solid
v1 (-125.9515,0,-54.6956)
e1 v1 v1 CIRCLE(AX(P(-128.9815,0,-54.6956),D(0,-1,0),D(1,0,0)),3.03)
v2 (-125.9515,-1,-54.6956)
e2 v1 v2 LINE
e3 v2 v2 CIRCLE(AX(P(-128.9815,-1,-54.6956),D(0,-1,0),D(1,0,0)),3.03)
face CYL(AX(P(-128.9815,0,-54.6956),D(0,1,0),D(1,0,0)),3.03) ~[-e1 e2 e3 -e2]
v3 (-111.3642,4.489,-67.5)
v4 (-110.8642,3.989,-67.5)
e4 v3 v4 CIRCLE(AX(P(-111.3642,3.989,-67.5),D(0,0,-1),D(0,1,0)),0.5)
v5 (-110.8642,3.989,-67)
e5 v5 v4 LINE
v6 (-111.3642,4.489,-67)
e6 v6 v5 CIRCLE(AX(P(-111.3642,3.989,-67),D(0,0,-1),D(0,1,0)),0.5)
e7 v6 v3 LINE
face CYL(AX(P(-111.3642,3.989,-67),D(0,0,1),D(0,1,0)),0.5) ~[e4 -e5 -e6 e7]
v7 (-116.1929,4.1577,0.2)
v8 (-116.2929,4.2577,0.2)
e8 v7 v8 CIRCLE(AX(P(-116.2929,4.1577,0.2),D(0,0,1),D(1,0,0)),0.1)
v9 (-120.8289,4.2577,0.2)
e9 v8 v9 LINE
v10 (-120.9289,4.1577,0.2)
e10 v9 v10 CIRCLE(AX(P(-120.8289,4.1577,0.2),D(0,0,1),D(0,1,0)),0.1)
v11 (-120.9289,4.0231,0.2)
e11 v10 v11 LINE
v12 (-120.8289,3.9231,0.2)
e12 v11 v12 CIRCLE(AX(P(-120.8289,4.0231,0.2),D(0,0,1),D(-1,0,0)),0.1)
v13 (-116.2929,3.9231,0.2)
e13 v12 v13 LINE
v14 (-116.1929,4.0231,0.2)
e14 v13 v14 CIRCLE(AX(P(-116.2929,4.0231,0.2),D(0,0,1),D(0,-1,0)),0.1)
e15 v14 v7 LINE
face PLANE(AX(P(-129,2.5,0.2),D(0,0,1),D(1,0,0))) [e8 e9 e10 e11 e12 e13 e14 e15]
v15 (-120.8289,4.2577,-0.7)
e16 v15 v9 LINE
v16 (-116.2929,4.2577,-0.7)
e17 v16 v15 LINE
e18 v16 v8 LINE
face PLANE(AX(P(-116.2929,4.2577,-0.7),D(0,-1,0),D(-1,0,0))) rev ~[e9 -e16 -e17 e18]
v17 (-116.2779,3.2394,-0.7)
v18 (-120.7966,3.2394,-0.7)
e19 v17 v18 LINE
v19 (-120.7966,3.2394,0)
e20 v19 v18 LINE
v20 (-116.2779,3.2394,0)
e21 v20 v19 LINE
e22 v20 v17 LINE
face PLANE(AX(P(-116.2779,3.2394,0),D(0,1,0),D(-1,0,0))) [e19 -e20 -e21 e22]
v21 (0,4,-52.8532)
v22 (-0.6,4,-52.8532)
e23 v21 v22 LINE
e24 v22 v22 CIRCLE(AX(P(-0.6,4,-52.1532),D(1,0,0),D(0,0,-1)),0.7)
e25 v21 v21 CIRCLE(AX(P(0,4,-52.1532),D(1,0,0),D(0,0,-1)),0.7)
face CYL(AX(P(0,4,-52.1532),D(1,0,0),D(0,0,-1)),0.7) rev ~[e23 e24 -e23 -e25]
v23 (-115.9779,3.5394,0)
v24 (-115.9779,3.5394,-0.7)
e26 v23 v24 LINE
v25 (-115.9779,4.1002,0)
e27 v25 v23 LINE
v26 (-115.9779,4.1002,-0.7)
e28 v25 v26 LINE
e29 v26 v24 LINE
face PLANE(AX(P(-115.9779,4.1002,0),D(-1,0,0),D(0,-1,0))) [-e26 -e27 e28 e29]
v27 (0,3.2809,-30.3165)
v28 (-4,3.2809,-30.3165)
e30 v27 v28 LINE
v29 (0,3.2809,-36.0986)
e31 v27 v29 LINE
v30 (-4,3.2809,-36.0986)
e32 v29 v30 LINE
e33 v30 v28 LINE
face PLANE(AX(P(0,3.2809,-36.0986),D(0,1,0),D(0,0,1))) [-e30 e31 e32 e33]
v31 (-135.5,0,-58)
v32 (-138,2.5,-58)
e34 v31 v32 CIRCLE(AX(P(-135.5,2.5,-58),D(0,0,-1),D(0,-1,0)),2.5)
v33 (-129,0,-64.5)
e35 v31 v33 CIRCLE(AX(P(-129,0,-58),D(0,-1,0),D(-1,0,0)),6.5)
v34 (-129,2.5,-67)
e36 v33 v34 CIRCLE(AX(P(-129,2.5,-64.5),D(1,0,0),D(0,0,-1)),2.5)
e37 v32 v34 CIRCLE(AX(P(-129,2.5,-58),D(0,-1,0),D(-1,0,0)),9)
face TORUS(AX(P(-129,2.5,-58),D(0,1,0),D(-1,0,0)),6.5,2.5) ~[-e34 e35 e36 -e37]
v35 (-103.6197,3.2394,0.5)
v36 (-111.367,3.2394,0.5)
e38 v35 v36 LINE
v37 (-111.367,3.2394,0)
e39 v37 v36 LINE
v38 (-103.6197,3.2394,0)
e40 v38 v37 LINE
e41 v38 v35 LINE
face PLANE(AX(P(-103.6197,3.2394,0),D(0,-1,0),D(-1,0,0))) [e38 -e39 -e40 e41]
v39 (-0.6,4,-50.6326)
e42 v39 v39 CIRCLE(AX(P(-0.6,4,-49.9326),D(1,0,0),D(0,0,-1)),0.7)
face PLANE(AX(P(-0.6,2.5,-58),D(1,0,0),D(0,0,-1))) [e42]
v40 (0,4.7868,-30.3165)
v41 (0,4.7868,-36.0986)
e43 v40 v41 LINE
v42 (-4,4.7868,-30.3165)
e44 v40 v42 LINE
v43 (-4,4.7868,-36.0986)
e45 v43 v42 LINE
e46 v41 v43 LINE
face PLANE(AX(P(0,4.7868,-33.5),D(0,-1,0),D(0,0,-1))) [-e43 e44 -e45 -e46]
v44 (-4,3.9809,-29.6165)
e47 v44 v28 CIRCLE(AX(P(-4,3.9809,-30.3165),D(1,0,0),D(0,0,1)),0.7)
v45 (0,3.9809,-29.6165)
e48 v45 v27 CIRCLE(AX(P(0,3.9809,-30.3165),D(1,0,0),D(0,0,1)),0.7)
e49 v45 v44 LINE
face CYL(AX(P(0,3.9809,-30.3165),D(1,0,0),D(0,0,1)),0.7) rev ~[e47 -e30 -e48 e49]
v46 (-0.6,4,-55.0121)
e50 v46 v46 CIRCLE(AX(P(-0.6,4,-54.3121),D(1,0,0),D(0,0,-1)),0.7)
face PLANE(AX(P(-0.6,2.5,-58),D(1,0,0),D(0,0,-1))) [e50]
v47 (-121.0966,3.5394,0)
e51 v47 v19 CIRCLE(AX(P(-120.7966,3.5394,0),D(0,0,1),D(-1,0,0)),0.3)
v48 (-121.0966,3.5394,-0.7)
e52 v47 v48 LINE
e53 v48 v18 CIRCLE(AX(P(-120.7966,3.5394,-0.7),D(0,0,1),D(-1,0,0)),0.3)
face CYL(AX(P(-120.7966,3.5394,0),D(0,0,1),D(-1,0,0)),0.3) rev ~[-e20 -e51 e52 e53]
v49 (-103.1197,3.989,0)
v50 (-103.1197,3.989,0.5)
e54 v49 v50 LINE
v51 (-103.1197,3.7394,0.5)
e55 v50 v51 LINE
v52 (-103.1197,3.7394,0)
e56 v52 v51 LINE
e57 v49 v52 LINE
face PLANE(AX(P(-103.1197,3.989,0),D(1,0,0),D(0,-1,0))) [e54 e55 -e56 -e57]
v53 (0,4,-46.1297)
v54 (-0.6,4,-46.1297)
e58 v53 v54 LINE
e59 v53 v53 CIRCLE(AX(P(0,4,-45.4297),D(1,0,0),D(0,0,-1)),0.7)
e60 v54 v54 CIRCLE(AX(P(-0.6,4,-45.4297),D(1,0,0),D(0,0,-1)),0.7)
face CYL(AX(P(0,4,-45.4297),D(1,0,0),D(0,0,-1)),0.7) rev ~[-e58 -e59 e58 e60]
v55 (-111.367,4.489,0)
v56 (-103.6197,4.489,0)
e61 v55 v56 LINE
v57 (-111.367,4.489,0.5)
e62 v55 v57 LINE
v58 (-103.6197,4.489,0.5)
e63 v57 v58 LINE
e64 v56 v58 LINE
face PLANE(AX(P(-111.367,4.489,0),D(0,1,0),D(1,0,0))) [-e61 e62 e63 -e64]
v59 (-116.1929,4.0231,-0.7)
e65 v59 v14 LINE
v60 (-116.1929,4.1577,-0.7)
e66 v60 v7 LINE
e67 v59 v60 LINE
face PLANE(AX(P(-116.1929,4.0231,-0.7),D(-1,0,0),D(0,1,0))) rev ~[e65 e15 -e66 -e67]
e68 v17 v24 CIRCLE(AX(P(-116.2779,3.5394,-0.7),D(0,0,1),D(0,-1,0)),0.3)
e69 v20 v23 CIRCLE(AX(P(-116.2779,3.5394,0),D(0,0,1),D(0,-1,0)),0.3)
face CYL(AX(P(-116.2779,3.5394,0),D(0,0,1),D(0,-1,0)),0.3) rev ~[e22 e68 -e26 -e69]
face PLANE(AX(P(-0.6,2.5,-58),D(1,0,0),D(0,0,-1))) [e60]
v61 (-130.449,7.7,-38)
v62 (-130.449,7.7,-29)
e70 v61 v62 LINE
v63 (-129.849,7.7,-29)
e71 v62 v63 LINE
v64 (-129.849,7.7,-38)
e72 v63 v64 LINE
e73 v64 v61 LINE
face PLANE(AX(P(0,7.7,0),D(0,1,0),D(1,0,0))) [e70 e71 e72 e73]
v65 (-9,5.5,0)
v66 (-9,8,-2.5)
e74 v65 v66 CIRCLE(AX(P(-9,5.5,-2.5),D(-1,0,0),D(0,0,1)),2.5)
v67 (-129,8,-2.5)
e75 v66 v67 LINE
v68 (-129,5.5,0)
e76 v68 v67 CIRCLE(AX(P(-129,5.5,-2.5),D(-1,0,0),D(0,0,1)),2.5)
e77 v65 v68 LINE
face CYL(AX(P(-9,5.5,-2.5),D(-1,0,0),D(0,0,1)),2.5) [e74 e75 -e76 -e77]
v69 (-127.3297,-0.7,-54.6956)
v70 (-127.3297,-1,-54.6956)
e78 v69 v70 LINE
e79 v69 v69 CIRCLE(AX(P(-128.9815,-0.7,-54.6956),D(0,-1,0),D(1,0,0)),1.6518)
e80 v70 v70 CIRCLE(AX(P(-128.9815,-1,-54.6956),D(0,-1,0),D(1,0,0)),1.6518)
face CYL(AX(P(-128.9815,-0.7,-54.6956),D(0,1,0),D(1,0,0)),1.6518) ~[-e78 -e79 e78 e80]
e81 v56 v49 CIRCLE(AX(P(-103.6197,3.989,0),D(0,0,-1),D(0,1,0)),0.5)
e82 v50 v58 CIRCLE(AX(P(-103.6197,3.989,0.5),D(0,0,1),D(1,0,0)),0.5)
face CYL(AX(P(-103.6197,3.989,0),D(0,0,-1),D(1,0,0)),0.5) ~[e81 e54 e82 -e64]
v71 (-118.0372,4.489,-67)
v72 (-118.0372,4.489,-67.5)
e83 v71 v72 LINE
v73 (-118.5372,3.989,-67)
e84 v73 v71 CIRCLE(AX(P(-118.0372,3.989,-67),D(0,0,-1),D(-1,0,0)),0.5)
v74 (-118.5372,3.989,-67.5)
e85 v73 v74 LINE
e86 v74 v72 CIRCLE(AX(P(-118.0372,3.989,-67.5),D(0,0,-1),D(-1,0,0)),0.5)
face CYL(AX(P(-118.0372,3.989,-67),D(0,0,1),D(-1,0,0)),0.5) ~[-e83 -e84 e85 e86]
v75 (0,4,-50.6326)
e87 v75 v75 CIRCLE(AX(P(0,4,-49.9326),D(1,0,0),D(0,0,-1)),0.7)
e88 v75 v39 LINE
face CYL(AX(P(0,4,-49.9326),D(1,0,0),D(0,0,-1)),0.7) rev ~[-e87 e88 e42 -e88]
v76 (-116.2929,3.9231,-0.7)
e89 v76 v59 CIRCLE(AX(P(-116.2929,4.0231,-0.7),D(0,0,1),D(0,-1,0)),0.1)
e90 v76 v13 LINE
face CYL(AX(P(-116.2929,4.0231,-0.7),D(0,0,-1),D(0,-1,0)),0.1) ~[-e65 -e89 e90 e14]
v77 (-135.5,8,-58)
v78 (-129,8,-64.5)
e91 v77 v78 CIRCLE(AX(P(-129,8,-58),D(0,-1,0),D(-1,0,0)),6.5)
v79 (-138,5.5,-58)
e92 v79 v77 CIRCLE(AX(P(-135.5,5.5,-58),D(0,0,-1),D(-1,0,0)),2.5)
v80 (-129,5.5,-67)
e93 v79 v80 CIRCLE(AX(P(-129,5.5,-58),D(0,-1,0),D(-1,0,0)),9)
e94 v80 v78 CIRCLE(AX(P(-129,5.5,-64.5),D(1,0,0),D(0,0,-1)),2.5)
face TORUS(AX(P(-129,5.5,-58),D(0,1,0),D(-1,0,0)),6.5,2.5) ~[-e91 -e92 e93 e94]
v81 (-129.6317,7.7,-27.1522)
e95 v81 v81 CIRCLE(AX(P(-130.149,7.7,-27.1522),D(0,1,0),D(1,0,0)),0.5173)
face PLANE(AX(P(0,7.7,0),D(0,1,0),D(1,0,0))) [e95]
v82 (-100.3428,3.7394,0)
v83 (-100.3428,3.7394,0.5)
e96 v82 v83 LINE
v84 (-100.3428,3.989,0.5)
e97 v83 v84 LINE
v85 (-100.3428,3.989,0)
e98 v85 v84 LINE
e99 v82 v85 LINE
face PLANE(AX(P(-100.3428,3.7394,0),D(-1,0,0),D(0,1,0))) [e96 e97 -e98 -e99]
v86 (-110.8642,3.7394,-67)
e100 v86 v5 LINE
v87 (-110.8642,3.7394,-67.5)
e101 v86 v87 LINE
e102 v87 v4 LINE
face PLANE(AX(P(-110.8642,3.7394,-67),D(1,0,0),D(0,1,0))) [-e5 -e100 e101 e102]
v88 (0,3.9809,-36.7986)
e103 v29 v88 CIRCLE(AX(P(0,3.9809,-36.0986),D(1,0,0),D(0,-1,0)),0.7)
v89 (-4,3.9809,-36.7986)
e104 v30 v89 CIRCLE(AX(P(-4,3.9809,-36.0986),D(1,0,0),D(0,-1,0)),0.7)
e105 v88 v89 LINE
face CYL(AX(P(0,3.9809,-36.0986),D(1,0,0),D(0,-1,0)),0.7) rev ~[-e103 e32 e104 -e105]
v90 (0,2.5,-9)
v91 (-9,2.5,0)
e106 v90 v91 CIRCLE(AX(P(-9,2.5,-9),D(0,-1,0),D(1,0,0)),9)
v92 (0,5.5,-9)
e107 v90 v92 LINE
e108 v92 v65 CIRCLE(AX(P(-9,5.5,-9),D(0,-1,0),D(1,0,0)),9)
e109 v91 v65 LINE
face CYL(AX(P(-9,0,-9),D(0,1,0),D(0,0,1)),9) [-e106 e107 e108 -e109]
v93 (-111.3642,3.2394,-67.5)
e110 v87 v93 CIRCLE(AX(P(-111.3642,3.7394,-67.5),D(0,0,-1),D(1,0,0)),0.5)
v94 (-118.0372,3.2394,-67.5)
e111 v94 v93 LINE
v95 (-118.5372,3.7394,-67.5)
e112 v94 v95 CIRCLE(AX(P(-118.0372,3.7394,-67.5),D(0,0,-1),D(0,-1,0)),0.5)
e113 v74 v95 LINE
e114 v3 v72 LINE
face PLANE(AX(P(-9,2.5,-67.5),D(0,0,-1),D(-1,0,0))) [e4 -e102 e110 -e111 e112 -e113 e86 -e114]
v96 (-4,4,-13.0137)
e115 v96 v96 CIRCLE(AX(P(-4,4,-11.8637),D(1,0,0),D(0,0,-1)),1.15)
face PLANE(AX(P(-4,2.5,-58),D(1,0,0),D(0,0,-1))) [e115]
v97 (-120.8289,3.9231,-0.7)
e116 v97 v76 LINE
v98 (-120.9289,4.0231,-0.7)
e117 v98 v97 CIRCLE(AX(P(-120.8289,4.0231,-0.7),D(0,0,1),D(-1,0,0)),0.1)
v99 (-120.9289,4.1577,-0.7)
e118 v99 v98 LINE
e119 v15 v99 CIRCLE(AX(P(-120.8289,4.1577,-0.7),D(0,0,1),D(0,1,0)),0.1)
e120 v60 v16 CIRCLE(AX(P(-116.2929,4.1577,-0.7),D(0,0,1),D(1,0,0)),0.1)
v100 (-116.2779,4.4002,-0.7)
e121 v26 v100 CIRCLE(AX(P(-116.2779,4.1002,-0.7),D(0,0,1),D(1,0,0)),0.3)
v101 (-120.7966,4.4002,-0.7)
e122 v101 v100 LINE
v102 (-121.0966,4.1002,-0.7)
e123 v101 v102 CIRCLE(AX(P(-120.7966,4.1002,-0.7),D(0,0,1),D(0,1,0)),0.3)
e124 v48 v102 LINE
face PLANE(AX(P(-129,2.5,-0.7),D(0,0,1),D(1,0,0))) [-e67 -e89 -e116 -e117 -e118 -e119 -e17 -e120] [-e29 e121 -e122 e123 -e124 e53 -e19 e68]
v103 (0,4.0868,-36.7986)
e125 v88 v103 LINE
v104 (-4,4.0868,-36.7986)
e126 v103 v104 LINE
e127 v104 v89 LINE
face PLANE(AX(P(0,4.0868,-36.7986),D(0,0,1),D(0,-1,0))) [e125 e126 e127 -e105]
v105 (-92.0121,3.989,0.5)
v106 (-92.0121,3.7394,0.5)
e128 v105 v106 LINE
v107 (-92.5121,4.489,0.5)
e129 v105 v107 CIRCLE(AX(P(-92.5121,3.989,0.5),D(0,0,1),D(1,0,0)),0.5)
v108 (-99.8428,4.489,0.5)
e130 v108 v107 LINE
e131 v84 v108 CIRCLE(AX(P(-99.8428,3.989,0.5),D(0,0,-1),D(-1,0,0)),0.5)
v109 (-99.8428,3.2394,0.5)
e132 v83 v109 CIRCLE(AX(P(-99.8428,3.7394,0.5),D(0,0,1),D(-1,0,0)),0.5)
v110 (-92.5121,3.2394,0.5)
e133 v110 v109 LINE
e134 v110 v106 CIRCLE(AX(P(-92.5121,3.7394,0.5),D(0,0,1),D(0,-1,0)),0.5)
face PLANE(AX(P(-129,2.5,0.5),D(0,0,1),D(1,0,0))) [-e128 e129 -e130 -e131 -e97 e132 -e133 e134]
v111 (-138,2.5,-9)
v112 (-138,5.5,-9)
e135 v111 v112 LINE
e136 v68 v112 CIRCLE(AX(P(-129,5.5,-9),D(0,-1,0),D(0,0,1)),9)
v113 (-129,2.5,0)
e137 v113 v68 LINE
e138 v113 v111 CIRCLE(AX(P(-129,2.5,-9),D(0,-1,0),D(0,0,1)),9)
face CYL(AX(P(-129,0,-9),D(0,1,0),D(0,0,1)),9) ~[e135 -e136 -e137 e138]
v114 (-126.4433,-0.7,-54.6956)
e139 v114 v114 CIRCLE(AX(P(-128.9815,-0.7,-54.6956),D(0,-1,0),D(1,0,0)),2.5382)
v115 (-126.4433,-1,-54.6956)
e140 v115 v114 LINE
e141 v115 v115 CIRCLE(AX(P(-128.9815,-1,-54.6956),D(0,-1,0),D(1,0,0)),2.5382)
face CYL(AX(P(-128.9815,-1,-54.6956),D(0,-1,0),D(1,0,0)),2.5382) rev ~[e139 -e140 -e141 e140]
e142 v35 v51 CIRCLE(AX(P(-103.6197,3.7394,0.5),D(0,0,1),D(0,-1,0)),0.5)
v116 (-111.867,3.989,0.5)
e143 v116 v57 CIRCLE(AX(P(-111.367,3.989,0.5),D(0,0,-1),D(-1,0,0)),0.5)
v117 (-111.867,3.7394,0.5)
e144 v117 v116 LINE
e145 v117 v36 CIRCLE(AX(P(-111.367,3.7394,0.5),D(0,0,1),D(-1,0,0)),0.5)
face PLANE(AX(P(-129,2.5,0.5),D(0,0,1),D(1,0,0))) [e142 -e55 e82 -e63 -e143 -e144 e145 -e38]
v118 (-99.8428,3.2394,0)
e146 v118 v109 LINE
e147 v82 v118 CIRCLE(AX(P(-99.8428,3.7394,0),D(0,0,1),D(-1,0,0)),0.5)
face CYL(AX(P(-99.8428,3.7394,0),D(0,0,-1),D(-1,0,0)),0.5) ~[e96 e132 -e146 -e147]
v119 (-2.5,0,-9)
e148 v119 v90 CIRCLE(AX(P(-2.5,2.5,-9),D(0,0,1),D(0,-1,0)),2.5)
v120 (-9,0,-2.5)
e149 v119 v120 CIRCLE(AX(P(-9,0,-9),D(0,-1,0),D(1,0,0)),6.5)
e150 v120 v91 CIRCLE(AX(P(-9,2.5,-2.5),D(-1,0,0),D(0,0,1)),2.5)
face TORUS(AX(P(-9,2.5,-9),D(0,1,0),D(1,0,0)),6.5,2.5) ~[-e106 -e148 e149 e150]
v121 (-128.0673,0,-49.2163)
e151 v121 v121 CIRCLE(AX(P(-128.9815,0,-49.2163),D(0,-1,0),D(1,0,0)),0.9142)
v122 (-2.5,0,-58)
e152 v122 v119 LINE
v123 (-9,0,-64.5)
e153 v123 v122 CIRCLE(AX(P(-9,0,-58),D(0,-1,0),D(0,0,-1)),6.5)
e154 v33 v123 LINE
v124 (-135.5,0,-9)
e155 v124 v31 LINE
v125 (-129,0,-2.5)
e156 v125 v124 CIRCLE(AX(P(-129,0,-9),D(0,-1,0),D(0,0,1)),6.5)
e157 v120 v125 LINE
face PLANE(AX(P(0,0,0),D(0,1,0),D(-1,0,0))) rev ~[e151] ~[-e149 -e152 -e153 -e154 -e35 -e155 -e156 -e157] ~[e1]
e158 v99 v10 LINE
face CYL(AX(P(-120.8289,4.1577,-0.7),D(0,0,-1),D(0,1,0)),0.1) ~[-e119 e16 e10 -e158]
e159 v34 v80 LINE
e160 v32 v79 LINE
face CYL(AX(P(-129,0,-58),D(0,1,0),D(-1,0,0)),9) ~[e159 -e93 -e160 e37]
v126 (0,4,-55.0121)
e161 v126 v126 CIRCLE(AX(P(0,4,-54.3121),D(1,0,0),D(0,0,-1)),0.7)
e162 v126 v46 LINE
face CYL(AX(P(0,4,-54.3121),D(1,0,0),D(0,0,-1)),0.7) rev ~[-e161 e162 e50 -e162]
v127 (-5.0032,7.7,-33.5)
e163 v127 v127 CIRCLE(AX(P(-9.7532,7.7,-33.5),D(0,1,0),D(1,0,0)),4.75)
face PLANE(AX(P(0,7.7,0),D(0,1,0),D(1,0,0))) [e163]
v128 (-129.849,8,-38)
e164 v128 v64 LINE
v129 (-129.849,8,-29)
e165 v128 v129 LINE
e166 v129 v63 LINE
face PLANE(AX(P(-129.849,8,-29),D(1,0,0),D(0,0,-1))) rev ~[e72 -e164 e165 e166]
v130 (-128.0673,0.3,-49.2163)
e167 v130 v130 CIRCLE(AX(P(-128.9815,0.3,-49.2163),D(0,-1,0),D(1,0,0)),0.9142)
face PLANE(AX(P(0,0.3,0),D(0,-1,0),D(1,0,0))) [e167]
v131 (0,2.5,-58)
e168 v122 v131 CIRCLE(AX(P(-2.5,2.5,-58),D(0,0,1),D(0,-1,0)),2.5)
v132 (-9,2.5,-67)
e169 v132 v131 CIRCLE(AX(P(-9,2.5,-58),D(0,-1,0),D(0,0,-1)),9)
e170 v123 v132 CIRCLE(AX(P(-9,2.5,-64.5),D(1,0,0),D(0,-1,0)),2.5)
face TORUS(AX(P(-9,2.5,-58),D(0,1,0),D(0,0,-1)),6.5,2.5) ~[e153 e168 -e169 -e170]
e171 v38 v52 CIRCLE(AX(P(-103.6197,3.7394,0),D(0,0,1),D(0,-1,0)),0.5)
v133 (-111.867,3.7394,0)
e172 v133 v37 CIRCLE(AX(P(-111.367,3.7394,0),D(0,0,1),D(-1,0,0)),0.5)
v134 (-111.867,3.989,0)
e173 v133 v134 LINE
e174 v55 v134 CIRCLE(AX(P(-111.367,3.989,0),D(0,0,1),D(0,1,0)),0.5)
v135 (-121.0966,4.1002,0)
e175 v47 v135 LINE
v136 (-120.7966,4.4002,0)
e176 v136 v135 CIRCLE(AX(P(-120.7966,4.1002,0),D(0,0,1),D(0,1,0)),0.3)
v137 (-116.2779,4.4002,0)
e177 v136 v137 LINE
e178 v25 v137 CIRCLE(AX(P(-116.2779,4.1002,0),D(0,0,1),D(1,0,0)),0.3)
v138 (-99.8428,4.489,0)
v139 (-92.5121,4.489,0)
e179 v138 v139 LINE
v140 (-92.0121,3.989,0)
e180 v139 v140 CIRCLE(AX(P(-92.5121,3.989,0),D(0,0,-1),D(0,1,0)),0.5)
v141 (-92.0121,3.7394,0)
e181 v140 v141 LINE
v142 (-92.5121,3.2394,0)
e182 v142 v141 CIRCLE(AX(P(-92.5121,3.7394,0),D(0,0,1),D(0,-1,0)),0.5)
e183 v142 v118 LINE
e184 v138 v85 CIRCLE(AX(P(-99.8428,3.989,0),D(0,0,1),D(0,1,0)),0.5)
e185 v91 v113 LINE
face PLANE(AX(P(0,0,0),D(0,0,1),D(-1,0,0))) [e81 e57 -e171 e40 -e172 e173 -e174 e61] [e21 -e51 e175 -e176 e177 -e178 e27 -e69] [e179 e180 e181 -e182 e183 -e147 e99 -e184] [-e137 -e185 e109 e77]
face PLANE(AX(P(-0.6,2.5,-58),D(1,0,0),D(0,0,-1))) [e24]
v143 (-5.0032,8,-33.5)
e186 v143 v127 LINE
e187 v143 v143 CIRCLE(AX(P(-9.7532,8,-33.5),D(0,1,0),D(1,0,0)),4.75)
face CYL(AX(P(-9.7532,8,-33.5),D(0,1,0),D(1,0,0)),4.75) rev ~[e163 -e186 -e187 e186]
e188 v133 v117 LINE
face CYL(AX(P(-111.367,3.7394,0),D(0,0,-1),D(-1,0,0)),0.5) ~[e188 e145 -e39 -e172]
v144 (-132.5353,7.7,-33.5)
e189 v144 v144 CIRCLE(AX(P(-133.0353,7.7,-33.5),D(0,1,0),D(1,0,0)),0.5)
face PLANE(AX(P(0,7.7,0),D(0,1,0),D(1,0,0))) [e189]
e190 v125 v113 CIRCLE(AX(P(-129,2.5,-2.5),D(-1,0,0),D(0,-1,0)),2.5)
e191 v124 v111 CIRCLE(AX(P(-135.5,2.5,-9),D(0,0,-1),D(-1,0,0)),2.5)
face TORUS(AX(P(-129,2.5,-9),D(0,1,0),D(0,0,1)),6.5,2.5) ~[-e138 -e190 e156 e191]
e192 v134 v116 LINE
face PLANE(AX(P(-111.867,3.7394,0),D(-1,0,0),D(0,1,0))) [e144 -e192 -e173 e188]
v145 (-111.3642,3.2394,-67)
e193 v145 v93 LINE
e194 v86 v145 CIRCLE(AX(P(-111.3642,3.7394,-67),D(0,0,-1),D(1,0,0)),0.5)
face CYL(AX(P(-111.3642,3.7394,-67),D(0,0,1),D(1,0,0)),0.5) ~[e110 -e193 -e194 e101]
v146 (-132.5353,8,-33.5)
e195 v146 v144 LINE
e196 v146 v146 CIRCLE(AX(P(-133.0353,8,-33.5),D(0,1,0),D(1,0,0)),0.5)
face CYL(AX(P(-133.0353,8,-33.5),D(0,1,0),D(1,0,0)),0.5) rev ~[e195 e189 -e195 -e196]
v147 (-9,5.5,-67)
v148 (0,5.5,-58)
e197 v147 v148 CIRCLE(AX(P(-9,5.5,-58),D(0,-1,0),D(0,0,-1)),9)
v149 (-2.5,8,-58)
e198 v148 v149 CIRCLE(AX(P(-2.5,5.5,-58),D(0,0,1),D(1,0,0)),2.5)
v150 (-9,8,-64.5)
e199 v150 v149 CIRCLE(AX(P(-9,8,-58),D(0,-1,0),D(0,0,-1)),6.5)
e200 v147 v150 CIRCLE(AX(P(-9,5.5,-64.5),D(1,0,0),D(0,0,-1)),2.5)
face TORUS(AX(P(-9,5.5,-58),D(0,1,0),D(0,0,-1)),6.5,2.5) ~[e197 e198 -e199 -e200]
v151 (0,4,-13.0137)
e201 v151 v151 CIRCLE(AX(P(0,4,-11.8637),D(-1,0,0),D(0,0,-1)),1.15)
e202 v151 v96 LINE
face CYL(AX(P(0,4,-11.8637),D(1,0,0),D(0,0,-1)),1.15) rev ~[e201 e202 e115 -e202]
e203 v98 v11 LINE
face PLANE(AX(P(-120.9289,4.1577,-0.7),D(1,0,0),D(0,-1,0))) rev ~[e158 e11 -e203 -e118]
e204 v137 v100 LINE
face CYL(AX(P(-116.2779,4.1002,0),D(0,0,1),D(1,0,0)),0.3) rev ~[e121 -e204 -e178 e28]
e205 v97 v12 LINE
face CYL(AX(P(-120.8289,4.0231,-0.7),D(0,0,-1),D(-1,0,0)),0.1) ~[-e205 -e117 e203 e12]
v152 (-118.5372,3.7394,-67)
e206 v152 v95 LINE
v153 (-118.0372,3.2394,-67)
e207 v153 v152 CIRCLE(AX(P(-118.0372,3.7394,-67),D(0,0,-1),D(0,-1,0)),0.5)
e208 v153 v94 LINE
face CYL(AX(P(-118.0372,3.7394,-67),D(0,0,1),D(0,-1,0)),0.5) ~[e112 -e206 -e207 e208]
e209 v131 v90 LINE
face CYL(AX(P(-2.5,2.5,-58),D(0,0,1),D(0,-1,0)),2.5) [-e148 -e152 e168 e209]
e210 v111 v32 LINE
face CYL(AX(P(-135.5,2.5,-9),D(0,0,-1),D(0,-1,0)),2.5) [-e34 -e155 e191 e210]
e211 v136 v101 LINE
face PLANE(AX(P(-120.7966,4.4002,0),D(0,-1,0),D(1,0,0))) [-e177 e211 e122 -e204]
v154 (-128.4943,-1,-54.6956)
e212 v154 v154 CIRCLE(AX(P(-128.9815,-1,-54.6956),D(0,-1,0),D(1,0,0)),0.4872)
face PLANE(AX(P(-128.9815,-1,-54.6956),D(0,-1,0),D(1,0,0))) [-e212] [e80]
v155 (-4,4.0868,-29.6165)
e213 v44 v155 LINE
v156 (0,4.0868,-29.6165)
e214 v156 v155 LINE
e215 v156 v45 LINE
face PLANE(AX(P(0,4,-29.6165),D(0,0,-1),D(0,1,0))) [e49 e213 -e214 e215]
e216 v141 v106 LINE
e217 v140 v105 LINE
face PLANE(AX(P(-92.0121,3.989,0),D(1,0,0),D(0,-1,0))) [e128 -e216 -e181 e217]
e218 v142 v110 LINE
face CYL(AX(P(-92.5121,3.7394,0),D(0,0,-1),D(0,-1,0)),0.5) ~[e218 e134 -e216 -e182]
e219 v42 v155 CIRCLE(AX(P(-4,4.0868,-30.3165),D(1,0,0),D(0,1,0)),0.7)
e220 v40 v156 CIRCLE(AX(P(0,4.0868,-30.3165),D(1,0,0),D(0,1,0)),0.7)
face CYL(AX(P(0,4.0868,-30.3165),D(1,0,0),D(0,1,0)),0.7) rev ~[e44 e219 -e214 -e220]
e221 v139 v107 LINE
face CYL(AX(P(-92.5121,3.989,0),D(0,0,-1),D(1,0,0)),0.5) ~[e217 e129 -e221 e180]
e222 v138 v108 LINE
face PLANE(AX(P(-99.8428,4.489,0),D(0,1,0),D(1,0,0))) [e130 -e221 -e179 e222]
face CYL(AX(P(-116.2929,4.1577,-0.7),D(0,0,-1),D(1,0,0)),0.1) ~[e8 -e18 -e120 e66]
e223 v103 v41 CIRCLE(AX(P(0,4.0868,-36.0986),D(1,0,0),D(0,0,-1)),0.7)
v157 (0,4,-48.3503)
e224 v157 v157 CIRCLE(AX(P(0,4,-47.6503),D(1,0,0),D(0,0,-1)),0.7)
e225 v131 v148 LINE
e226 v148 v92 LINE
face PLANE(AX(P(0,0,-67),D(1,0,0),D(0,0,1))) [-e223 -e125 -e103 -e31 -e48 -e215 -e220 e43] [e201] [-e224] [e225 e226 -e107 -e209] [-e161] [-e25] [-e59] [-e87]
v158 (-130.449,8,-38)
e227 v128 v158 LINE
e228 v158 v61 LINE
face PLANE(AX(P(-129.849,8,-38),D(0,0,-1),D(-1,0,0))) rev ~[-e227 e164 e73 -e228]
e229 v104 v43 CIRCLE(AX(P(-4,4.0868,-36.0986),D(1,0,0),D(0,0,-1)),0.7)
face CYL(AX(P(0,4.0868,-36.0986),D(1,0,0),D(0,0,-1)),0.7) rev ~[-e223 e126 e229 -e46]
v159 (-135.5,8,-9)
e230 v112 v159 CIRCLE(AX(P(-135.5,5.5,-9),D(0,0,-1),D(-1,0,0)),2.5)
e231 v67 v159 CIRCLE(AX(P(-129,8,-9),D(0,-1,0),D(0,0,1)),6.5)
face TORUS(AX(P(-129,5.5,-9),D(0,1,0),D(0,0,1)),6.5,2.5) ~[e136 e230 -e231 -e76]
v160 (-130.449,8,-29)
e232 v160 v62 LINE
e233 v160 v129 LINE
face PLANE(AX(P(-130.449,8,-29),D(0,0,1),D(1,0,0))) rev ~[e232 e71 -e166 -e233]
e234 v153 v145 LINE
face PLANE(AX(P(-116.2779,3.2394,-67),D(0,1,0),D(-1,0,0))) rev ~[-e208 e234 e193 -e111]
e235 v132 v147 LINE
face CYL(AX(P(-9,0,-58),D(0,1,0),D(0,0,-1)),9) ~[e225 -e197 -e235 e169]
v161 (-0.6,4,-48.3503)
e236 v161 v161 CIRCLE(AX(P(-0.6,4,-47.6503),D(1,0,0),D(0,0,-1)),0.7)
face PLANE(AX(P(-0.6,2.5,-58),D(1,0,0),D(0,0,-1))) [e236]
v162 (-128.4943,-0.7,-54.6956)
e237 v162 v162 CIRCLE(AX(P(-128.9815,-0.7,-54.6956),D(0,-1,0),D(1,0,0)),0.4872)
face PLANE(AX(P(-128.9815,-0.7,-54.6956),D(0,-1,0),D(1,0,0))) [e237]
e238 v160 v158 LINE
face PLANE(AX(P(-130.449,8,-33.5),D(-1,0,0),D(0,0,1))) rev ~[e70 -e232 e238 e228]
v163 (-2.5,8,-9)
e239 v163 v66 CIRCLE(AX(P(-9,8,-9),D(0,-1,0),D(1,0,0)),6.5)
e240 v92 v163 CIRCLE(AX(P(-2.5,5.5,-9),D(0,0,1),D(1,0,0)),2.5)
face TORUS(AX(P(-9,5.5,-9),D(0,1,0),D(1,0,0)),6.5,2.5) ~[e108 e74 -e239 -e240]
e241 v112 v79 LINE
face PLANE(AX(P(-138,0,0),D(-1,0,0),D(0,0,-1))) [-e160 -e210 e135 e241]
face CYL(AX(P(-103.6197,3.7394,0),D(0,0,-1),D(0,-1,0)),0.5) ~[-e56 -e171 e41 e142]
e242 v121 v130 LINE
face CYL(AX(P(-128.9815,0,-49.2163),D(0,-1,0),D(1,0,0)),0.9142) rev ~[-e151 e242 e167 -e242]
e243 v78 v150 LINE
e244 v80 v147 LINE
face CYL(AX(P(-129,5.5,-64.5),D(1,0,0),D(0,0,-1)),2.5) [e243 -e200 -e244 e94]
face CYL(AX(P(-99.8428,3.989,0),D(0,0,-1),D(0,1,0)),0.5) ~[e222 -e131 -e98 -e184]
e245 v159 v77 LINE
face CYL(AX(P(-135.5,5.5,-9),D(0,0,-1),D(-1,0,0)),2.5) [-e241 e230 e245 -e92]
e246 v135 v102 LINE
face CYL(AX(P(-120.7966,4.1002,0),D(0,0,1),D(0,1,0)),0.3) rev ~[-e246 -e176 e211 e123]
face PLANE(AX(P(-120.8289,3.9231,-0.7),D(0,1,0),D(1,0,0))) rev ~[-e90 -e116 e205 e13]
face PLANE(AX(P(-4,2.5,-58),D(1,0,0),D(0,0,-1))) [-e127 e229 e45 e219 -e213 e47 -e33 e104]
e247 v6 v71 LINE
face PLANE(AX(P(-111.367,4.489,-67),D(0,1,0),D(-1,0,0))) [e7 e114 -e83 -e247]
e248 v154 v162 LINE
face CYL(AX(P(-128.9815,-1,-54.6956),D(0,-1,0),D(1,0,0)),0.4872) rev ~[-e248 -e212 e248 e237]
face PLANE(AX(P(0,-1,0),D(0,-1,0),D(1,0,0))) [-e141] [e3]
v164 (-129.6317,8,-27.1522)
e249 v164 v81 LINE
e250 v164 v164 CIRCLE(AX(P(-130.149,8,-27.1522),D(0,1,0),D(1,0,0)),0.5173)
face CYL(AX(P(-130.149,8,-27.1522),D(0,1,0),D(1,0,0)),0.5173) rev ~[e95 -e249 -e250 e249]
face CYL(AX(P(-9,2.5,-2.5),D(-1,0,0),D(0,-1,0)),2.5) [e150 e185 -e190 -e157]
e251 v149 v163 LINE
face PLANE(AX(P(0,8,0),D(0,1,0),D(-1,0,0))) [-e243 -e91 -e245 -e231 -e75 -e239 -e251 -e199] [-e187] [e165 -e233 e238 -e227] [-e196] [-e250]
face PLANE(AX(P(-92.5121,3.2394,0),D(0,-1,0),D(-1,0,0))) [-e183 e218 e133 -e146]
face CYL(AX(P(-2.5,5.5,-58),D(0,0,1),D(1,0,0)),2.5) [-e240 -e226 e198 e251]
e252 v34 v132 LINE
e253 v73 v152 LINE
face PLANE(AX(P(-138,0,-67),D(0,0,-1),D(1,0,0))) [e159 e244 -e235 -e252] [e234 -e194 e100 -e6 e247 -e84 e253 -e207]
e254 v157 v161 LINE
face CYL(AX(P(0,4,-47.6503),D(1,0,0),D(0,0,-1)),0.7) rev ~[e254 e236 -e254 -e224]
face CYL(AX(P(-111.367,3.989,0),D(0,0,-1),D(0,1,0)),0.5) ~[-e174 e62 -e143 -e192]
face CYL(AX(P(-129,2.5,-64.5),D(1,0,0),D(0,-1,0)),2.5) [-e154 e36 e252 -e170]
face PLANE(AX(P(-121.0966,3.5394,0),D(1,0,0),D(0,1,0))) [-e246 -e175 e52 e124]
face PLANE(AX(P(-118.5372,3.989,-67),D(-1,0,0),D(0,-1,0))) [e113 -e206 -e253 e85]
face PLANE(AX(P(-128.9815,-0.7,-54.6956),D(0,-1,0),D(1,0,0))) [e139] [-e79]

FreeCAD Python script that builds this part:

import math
import FreeCAD as App
import Part
import Sketcher


def edges_at(feature, points):
    """Names of the edges that pass closest to the given points."""
    edges = feature.Shape.Edges
    near = lambda p: min(range(len(edges)), key=lambda i: edges[i].distToShape(Part.Vertex(*p))[0])
    return sorted({f"Edge{near(p) + 1}" for p in points})


def add_polygon(sketch, points):
    """Adds a closed chain of lines whose ends are joined by coincident constraints."""
    first, n = sketch.GeometryCount, len(points)
    for a, b in zip(points, points[1:] + points[:1]):
        sketch.addGeometry(Part.LineSegment(App.Vector(*a, 0), App.Vector(*b, 0)), False)
    for i in range(n):
        sketch.addConstraint(Sketcher.Constraint("Coincident", first + i, 2, first + (i + 1) % n, 1))

doc = App.newDocument("Part")
params = doc.addObject("Spreadsheet::Sheet", "Params")
for row, (alias, value) in enumerate([
    ("sketch1_width", "138 mm"),
    ("sketch1_height", "67 mm"),
    ("pad1_length", "8 mm"),
    ("fillet_radius", "9 mm"),
    ("fillet2_radius", "2.5 mm"),
    ("sketch2_diameter", "1 mm"),
    ("sketch2_diameter2", "9.5 mm"),
    ("sketch2_height", "9 mm"),
    ("sketch2_width", "0.6 mm"),
    ("pocket1_length", "0.3 mm"),
    ("sketch3_diameter", "1.4 mm"),
    ("pocket2_length", "0.6 mm"),
    ("sketch4_radius", "0.7 mm"),
    ("sketch4_diameter", "2.3 mm"),
    ("pocket3_length", "4 mm"),
    ("sketch5_radius", "0.5 mm"),
    ("pad2_length", "0.5 mm"),
    ("sketch6_radius", "0.3 mm"),
    ("pocket4_length", "0.7 mm"),
    ("sketch7_radius", "0.1 mm"),
    ("pad3_length", "0.9 mm"),
    ("sketch8_radius", "0.5 mm"),
    ("pad4_length", "0.5 mm"),
    ("sketch9_diameter", "6.06 mm"),
    ("pad5_length", "1 mm"),
    ("pocket5_length", "0.3 mm"),
    ("pad6_length", "0.3 mm"),
    ("pocket6_length", "0.3 mm"),
    ("pocket7_length", "0.3 mm"),
], start=1):
    params.set(f"A{row}", alias)
    params.set(f"B{row}", "=" + value)
    params.setAlias(f"B{row}", alias)

body = doc.addObject("PartDesign::Body", "Body")

# Sketch on XZ plane
sketch1 = body.newObject("Sketcher::SketchObject", "Sketch")
sketch1.AttachmentSupport = (doc.getObject("XZ_Plane"), [""])
sketch1.MapMode = "FlatFace"
add_polygon(sketch1, [(-138, 0), (0, 0), (0, -67), (-138, -67)])  # lines 0-3
sketch1.addConstraint([
    Sketcher.Constraint("Horizontal", 0),
    Sketcher.Constraint("Vertical", 1),
    Sketcher.Constraint("Horizontal", 2),
    Sketcher.Constraint("Vertical", 3),
    Sketcher.Constraint("Coincident", 0, 2, -1, 1),
    Sketcher.Constraint("DistanceX", 0, 1, 0, 2, 138.0),
    Sketcher.Constraint("DistanceY", 1, 2, 1, 1, 67.0),
])
sketch1.setExpression("Constraints[9]", "Params.sketch1_width")
sketch1.setExpression("Constraints[10]", "Params.sketch1_height")
pad1 = body.newObject("PartDesign::Pad", "Pad")
pad1.Profile = sketch1
pad1.setExpression("Length", "Params.pad1_length")
pad1.Reversed = True
doc.recompute()

fillet = body.newObject("PartDesign::Fillet", "Fillet")
fillet.Base = (pad1, edges_at(pad1, [
    (-138, 4, 0),
    (-138, 4, -67),
    (0, 4, 0),
    (0, 4, -67),
]))
fillet.setExpression("Radius", "Params.fillet_radius")
doc.recompute()

fillet2 = body.newObject("PartDesign::Fillet", "Fillet001")
fillet2.Base = (fillet, edges_at(fillet, [
    (-135.364, 8, -2.636),
    (-69, 8, 0),
    (-2.636, 8, -2.636),
    (0, 8, -33.5),
    (-2.636, 8, -64.364),
    (-69, 8, -67),
    (-135.364, 8, -64.364),
    (-138, 8, -33.5),
    (0, 0, -33.5),
    (-2.636, 0, -64.364),
    (-69, 0, -67),
    (-135.364, 0, -64.364),
    (-138, 0, -33.5),
    (-135.364, 0, -2.636),
    (-69, 0, 0),
    (-2.636, 0, -2.636),
]))
fillet2.setExpression("Radius", "Params.fillet2_radius")

# Sketch on XZ plane
sketch2 = body.newObject("Sketcher::SketchObject", "Sketch001")
sketch2.AttachmentSupport = (doc.getObject("XZ_Plane"), [""])
sketch2.MapMode = "FlatFace"
sketch2.AttachmentOffset = App.Placement(App.Vector(0, 0, -8), App.Rotation())
sketch2.addGeometry(Part.Circle(App.Vector(-9.7532, -33.5, 0), App.Vector(0, 0, 1), 4.75), False)  # 0
sketch2.addGeometry(Part.Circle(App.Vector(-133.0353, -33.5, 0), App.Vector(0, 0, 1), 0.5), False)  # 1
add_polygon(sketch2, [(-129.849, -29), (-129.849, -38), (-130.449, -38), (-130.449, -29)])  # lines 2-5
sketch2.addGeometry(Part.Circle(App.Vector(-130.149, -27.1522, 0), App.Vector(0, 0, 1), 0.5173), False)  # 6
sketch2.addConstraint([
    Sketcher.Constraint("Vertical", 2),
    Sketcher.Constraint("Horizontal", 3),
    Sketcher.Constraint("Vertical", 4),
    Sketcher.Constraint("Horizontal", 5),
    Sketcher.Constraint("Horizontal", 0, 3, 1, 3),
    Sketcher.Constraint("Diameter", 1, 1.0),
    Sketcher.Constraint("Diameter", 0, 9.5),
    Sketcher.Constraint("DistanceY", 2, 2, 2, 1, 9.0),
    Sketcher.Constraint("DistanceX", 3, 2, 3, 1, 0.6),
    Sketcher.Constraint("DistanceY", 2, 2, -1, 1, 38.0),
    Sketcher.Constraint("Diameter", 6, 1.0346),
    Sketcher.Constraint("DistanceY", 0, 3, -1, 1, 33.5),
    Sketcher.Constraint("DistanceX", 6, 3, 2, 2, 0.3),
    Sketcher.Constraint("DistanceX", 6, 3, -1, 1, 130.149),
    Sketcher.Constraint("DistanceX", 1, 3, 0, 3, 123.282),
    Sketcher.Constraint("DistanceX", 0, 3, -1, 1, 9.7532),
    Sketcher.Constraint("DistanceY", 6, 3, -1, 1, 27.1522),
])
sketch2.setExpression("Constraints[9]", "Params.sketch2_diameter")
sketch2.setExpression("Constraints[10]", "Params.sketch2_diameter2")
sketch2.setExpression("Constraints[11]", "Params.sketch2_height")
sketch2.setExpression("Constraints[12]", "Params.sketch2_width")
pocket1 = body.newObject("PartDesign::Pocket", "Pocket")
pocket1.Profile = sketch2
pocket1.setExpression("Length", "Params.pocket1_length")
pocket1.Reversed = True

# Sketch on YZ plane
sketch3 = body.newObject("Sketcher::SketchObject", "Sketch002")
sketch3.AttachmentSupport = (doc.getObject("YZ_Plane"), [""])
sketch3.MapMode = "FlatFace"
sketch3.addGeometry([
    Part.Circle(App.Vector(4, -54.3121, 0), App.Vector(0, 0, 1), 0.7),  # 0
    Part.Circle(App.Vector(4, -52.1532, 0), App.Vector(0, 0, 1), 0.7),  # 1
    Part.Circle(App.Vector(4, -49.9326, 0), App.Vector(0, 0, 1), 0.7),  # 2
    Part.Circle(App.Vector(4, -47.6503, 0), App.Vector(0, 0, 1), 0.7),  # 3
    Part.Circle(App.Vector(4, -45.4297, 0), App.Vector(0, 0, 1), 0.7),  # 4
], False)
sketch3.addConstraint([
    Sketcher.Constraint("Equal", 0, 1),
    Sketcher.Constraint("Equal", 1, 2),
    Sketcher.Constraint("Equal", 2, 3),
    Sketcher.Constraint("Equal", 3, 4),
    Sketcher.Constraint("Vertical", 0, 3, 1, 3),
    Sketcher.Constraint("Vertical", 1, 3, 2, 3),
    Sketcher.Constraint("Vertical", 2, 3, 3, 3),
    Sketcher.Constraint("Vertical", 3, 3, 4, 3),
    Sketcher.Constraint("Diameter", 0, 1.4),
    Sketcher.Constraint("DistanceX", -1, 1, 0, 3, 4.0),
    Sketcher.Constraint("DistanceY", 0, 3, -1, 1, 54.312),
    Sketcher.Constraint("DistanceY", 0, 3, 1, 3, 2.159),
    Sketcher.Constraint("DistanceY", 1, 3, 3, 3, 4.503),
    Sketcher.Constraint("DistanceY", 2, 3, 4, 3, 4.503),
    Sketcher.Constraint("DistanceY", 2, 3, -1, 1, 49.9326),
])
sketch3.setExpression("Constraints[8]", "Params.sketch3_diameter")
pocket2 = body.newObject("PartDesign::Pocket", "Pocket001")
pocket2.Profile = sketch3
pocket2.setExpression("Length", "Params.pocket2_length")

# Sketch on YZ plane
sketch4 = body.newObject("Sketcher::SketchObject", "Sketch003")
sketch4.AttachmentSupport = (doc.getObject("YZ_Plane"), [""])
sketch4.MapMode = "FlatFace"
sketch4.addGeometry([
    Part.Circle(App.Vector(4, -11.8637, 0), App.Vector(0, 0, 1), 1.15),  # 0
    Part.LineSegment(App.Vector(4.7868, -36.0986, 0), App.Vector(4.7868, -30.3165, 0)),  # 1
    Part.ArcOfCircle(Part.Circle(App.Vector(4.0868, -30.3165, 0), App.Vector(0, 0, 1), 0.7), math.radians(0), math.radians(90)),  # 2
    Part.LineSegment(App.Vector(4.0868, -29.6165, 0), App.Vector(3.9809, -29.6165, 0)),  # 3
    Part.ArcOfCircle(Part.Circle(App.Vector(3.9809, -30.3165, 0), App.Vector(0, 0, 1), 0.7), math.radians(90), math.radians(180)),  # 4
    Part.LineSegment(App.Vector(3.2809, -30.3165, 0), App.Vector(3.2809, -36.0986, 0)),  # 5
    Part.ArcOfCircle(Part.Circle(App.Vector(3.9809, -36.0986, 0), App.Vector(0, 0, 1), 0.7), math.radians(180), math.radians(270)),  # 6
    Part.LineSegment(App.Vector(3.9809, -36.7986, 0), App.Vector(4.0868, -36.7986, 0)),  # 7
    Part.ArcOfCircle(Part.Circle(App.Vector(4.0868, -36.0986, 0), App.Vector(0, 0, 1), 0.7), math.radians(-90), math.radians(0)),  # 8
], False)
sketch4.addConstraint([
    Sketcher.Constraint("Tangent", 1, 2, 2, 1),
    Sketcher.Constraint("Tangent", 2, 2, 3, 1),
    Sketcher.Constraint("Tangent", 3, 2, 4, 1),
    Sketcher.Constraint("Tangent", 4, 2, 5, 1),
    Sketcher.Constraint("Tangent", 5, 2, 6, 1),
    Sketcher.Constraint("Tangent", 6, 2, 7, 1),
    Sketcher.Constraint("Tangent", 7, 2, 8, 1),
    Sketcher.Constraint("Tangent", 8, 2, 1, 1),
    Sketcher.Constraint("Vertical", 1),
    Sketcher.Constraint("Horizontal", 3),
    Sketcher.Constraint("Vertical", 5),
    Sketcher.Constraint("Horizontal", 7),
    Sketcher.Constraint("Equal", 2, 4),
    Sketcher.Constraint("Equal", 4, 6),
    Sketcher.Constraint("Equal", 6, 8),
    Sketcher.Constraint("Radius", 2, 0.7),
    Sketcher.Constraint("Diameter", 0, 2.3),
    Sketcher.Constraint("DistanceX", -1, 1, 0, 3, 4.0),
    Sketcher.Constraint("DistanceX", 3, 2, 3, 1, 0.106),
    Sketcher.Constraint("DistanceY", 1, 1, 1, 2, 5.782),
    Sketcher.Constraint("DistanceX", -1, 1, 4, 3, 3.981),
    Sketcher.Constraint("DistanceY", 6, 3, 0, 3, 24.235),
    Sketcher.Constraint("DistanceY", 0, 3, -1, 1, 11.8637),
])
sketch4.setExpression("Constraints[15]", "Params.sketch4_radius")
sketch4.setExpression("Constraints[16]", "Params.sketch4_diameter")
pocket3 = body.newObject("PartDesign::Pocket", "Pocket002")
pocket3.Profile = sketch4
pocket3.setExpression("Length", "Params.pocket3_length")

# Sketch on XY plane
sketch5 = body.newObject("Sketcher::SketchObject", "Sketch004")
sketch5.AttachmentSupport = (doc.getObject("XY_Plane"), [""])
sketch5.MapMode = "FlatFace"
sketch5.addGeometry([
    Part.ArcOfCircle(Part.Circle(App.Vector(-111.367, 3.989, 0), App.Vector(0, 0, 1), 0.5), math.radians(90), math.radians(180)),  # 0
    Part.LineSegment(App.Vector(-111.867, 3.989, 0), App.Vector(-111.867, 3.7394, 0)),  # 1
    Part.ArcOfCircle(Part.Circle(App.Vector(-111.367, 3.7394, 0), App.Vector(0, 0, 1), 0.5), math.radians(180), math.radians(270)),  # 2
    Part.LineSegment(App.Vector(-111.367, 3.2394, 0), App.Vector(-103.6197, 3.2394, 0)),  # 3
    Part.ArcOfCircle(Part.Circle(App.Vector(-103.6197, 3.7394, 0), App.Vector(0, 0, 1), 0.5), math.radians(-90), math.radians(0)),  # 4
    Part.LineSegment(App.Vector(-103.1197, 3.7394, 0), App.Vector(-103.1197, 3.989, 0)),  # 5
    Part.ArcOfCircle(Part.Circle(App.Vector(-103.6197, 3.989, 0), App.Vector(0, 0, 1), 0.5), math.radians(0), math.radians(90)),  # 6
    Part.LineSegment(App.Vector(-103.6197, 4.489, 0), App.Vector(-111.367, 4.489, 0)),  # 7
    Part.ArcOfCircle(Part.Circle(App.Vector(-99.8428, 3.989, 0), App.Vector(0, 0, 1), 0.5), math.radians(90), math.radians(180)),  # 8
    Part.LineSegment(App.Vector(-100.3428, 3.989, 0), App.Vector(-100.3428, 3.7394, 0)),  # 9
    Part.ArcOfCircle(Part.Circle(App.Vector(-99.8428, 3.7394, 0), App.Vector(0, 0, 1), 0.5), math.radians(180), math.radians(270)),  # 10
    Part.LineSegment(App.Vector(-99.8428, 3.2394, 0), App.Vector(-92.5121, 3.2394, 0)),  # 11
    Part.ArcOfCircle(Part.Circle(App.Vector(-92.5121, 3.7394, 0), App.Vector(0, 0, 1), 0.5), math.radians(-90), math.radians(0)),  # 12
    Part.LineSegment(App.Vector(-92.0121, 3.7394, 0), App.Vector(-92.0121, 3.989, 0)),  # 13
    Part.ArcOfCircle(Part.Circle(App.Vector(-92.5121, 3.989, 0), App.Vector(0, 0, 1), 0.5), math.radians(0), math.radians(90)),  # 14
    Part.LineSegment(App.Vector(-92.5121, 4.489, 0), App.Vector(-99.8428, 4.489, 0)),  # 15
], False)
sketch5.addConstraint([
    Sketcher.Constraint("Tangent", 0, 2, 1, 1),
    Sketcher.Constraint("Tangent", 1, 2, 2, 1),
    Sketcher.Constraint("Tangent", 2, 2, 3, 1),
    Sketcher.Constraint("Tangent", 3, 2, 4, 1),
    Sketcher.Constraint("Tangent", 4, 2, 5, 1),
    Sketcher.Constraint("Tangent", 5, 2, 6, 1),
    Sketcher.Constraint("Tangent", 6, 2, 7, 1),
    Sketcher.Constraint("Tangent", 7, 2, 0, 1),
    Sketcher.Constraint("Tangent", 8, 2, 9, 1),
    Sketcher.Constraint("Tangent", 9, 2, 10, 1),
    Sketcher.Constraint("Tangent", 10, 2, 11, 1),
    Sketcher.Constraint("Tangent", 11, 2, 12, 1),
    Sketcher.Constraint("Tangent", 12, 2, 13, 1),
    Sketcher.Constraint("Tangent", 13, 2, 14, 1),
    Sketcher.Constraint("Tangent", 14, 2, 15, 1),
    Sketcher.Constraint("Tangent", 15, 2, 8, 1),
    Sketcher.Constraint("Vertical", 1),
    Sketcher.Constraint("Horizontal", 3),
    Sketcher.Constraint("Vertical", 5),
    Sketcher.Constraint("Horizontal", 7),
    Sketcher.Constraint("Vertical", 9),
    Sketcher.Constraint("Horizontal", 11),
    Sketcher.Constraint("Vertical", 13),
    Sketcher.Constraint("Horizontal", 15),
    Sketcher.Constraint("Equal", 0, 2),
    Sketcher.Constraint("Equal", 2, 4),
    Sketcher.Constraint("Equal", 4, 6),
    Sketcher.Constraint("Equal", 6, 8),
    Sketcher.Constraint("Equal", 8, 10),
    Sketcher.Constraint("Equal", 10, 12),
    Sketcher.Constraint("Equal", 12, 14),
    Sketcher.Constraint("Horizontal", 6, 3, 8, 3),
    Sketcher.Constraint("Horizontal", 4, 3, 10, 3),
    Sketcher.Constraint("Radius", 0, 0.5),
    Sketcher.Constraint("DistanceX", 3, 1, 3, 2, 7.7473),
    Sketcher.Constraint("DistanceX", 11, 1, 11, 2, 7.3307),
    Sketcher.Constraint("DistanceY", 1, 2, 1, 1, 0.2496),
    Sketcher.Constraint("DistanceX", 0, 3, -1, 1, 111.367),
    Sketcher.Constraint("DistanceY", -1, 1, 0, 3, 3.989),
    Sketcher.Constraint("DistanceX", 12, 3, -1, 1, 92.512),
])
sketch5.setExpression("Constraints[33]", "Params.sketch5_radius")
pad2 = body.newObject("PartDesign::Pad", "Pad001")
pad2.Profile = sketch5
pad2.setExpression("Length", "Params.pad2_length")

# Sketch on XY plane
sketch6 = body.newObject("Sketcher::SketchObject", "Sketch005")
sketch6.AttachmentSupport = (doc.getObject("XY_Plane"), [""])
sketch6.MapMode = "FlatFace"
sketch6.addGeometry([
    Part.LineSegment(App.Vector(-120.7966, 3.2394, 0), App.Vector(-116.2779, 3.2394, 0)),  # 0
    Part.ArcOfCircle(Part.Circle(App.Vector(-116.2779, 3.5394, 0), App.Vector(0, 0, 1), 0.3), math.radians(-90), math.radians(0)),  # 1
    Part.LineSegment(App.Vector(-115.9779, 3.5394, 0), App.Vector(-115.9779, 4.1002, 0)),  # 2
    Part.ArcOfCircle(Part.Circle(App.Vector(-116.2779, 4.1002, 0), App.Vector(0, 0, 1), 0.3), math.radians(0), math.radians(90)),  # 3
    Part.LineSegment(App.Vector(-116.2779, 4.4002, 0), App.Vector(-120.7966, 4.4002, 0)),  # 4
    Part.ArcOfCircle(Part.Circle(App.Vector(-120.7966, 4.1002, 0), App.Vector(0, 0, 1), 0.3), math.radians(90), math.radians(180)),  # 5
    Part.LineSegment(App.Vector(-121.0966, 4.1002, 0), App.Vector(-121.0966, 3.5394, 0)),  # 6
    Part.ArcOfCircle(Part.Circle(App.Vector(-120.7966, 3.5394, 0), App.Vector(0, 0, 1), 0.3), math.radians(180), math.radians(270)),  # 7
], False)
sketch6.addConstraint([
    Sketcher.Constraint("Tangent", 0, 2, 1, 1),
    Sketcher.Constraint("Tangent", 1, 2, 2, 1),
    Sketcher.Constraint("Tangent", 2, 2, 3, 1),
    Sketcher.Constraint("Tangent", 3, 2, 4, 1),
    Sketcher.Constraint("Tangent", 4, 2, 5, 1),
    Sketcher.Constraint("Tangent", 5, 2, 6, 1),
    Sketcher.Constraint("Tangent", 6, 2, 7, 1),
    Sketcher.Constraint("Tangent", 7, 2, 0, 1),
    Sketcher.Constraint("Horizontal", 0),
    Sketcher.Constraint("Vertical", 2),
    Sketcher.Constraint("Horizontal", 4),
    Sketcher.Constraint("Vertical", 6),
    Sketcher.Constraint("Equal", 1, 3),
    Sketcher.Constraint("Equal", 3, 5),
    Sketcher.Constraint("Equal", 5, 7),
    Sketcher.Constraint("Radius", 1, 0.3),
    Sketcher.Constraint("DistanceX", 0, 1, 0, 2, 4.5187),
    Sketcher.Constraint("DistanceY", 2, 1, 2, 2, 0.5608),
    Sketcher.Constraint("DistanceX", 1, 3, -1, 1, 116.278),
    Sketcher.Constraint("DistanceY", -1, 1, 1, 3, 3.5394),
])
sketch6.setExpression("Constraints[15]", "Params.sketch6_radius")
pocket4 = body.newObject("PartDesign::Pocket", "Pocket003")
pocket4.Profile = sketch6
pocket4.setExpression("Length", "Params.pocket4_length")

# Sketch on XY plane
sketch7 = body.newObject("Sketcher::SketchObject", "Sketch006")
sketch7.AttachmentSupport = (doc.getObject("XY_Plane"), [""])
sketch7.MapMode = "FlatFace"
sketch7.AttachmentOffset = App.Placement(App.Vector(0, 0, -0.7), App.Rotation())
sketch7.addGeometry([
    Part.ArcOfCircle(Part.Circle(App.Vector(-116.2929, 4.1577, 0), App.Vector(0, 0, 1), 0.1), math.radians(0), math.radians(90)),  # 0
    Part.LineSegment(App.Vector(-116.2929, 4.2577, 0), App.Vector(-120.8289, 4.2577, 0)),  # 1
    Part.ArcOfCircle(Part.Circle(App.Vector(-120.8289, 4.1577, 0), App.Vector(0, 0, 1), 0.1), math.radians(90), math.radians(180)),  # 2
    Part.LineSegment(App.Vector(-120.9289, 4.1577, 0), App.Vector(-120.9289, 4.0231, 0)),  # 3
    Part.ArcOfCircle(Part.Circle(App.Vector(-120.8289, 4.0231, 0), App.Vector(0, 0, 1), 0.1), math.radians(180), math.radians(270)),  # 4
    Part.LineSegment(App.Vector(-120.8289, 3.9231, 0), App.Vector(-116.2929, 3.9231, 0)),  # 5
    Part.ArcOfCircle(Part.Circle(App.Vector(-116.2929, 4.0231, 0), App.Vector(0, 0, 1), 0.1), math.radians(-90), math.radians(0)),  # 6
    Part.LineSegment(App.Vector(-116.1929, 4.0231, 0), App.Vector(-116.1929, 4.1577, 0)),  # 7
], False)
sketch7.addConstraint([
    Sketcher.Constraint("Tangent", 0, 2, 1, 1),
    Sketcher.Constraint("Tangent", 1, 2, 2, 1),
    Sketcher.Constraint("Tangent", 2, 2, 3, 1),
    Sketcher.Constraint("Tangent", 3, 2, 4, 1),
    Sketcher.Constraint("Tangent", 4, 2, 5, 1),
    Sketcher.Constraint("Tangent", 5, 2, 6, 1),
    Sketcher.Constraint("Tangent", 6, 2, 7, 1),
    Sketcher.Constraint("Tangent", 7, 2, 0, 1),
    Sketcher.Constraint("Horizontal", 1),
    Sketcher.Constraint("Vertical", 3),
    Sketcher.Constraint("Horizontal", 5),
    Sketcher.Constraint("Vertical", 7),
    Sketcher.Constraint("Equal", 0, 2),
    Sketcher.Constraint("Equal", 2, 4),
    Sketcher.Constraint("Equal", 4, 6),
    Sketcher.Constraint("Radius", 0, 0.1),
    Sketcher.Constraint("DistanceX", 1, 2, 1, 1, 4.536),
    Sketcher.Constraint("DistanceY", 3, 2, 3, 1, 0.1346),
    Sketcher.Constraint("DistanceX", 0, 3, -1, 1, 116.293),
    Sketcher.Constraint("DistanceY", -1, 1, 4, 3, 4.023),
])
sketch7.setExpression("Constraints[15]", "Params.sketch7_radius")
pad3 = body.newObject("PartDesign::Pad", "Pad002")
pad3.Profile = sketch7
pad3.setExpression("Length", "Params.pad3_length")

# Sketch on XY plane
sketch8 = body.newObject("Sketcher::SketchObject", "Sketch007")
sketch8.AttachmentSupport = (doc.getObject("XY_Plane"), [""])
sketch8.MapMode = "FlatFace"
sketch8.AttachmentOffset = App.Placement(App.Vector(0, 0, -67), App.Rotation())
sketch8.addGeometry([
    Part.LineSegment(App.Vector(-111.3642, 3.2394, 0), App.Vector(-118.0372, 3.2394, 0)),  # 0
    Part.ArcOfCircle(Part.Circle(App.Vector(-118.0372, 3.7394, 0), App.Vector(0, 0, 1), 0.5), math.radians(180), math.radians(270)),  # 1
    Part.LineSegment(App.Vector(-118.5372, 3.7394, 0), App.Vector(-118.5372, 3.989, 0)),  # 2
    Part.ArcOfCircle(Part.Circle(App.Vector(-118.0372, 3.989, 0), App.Vector(0, 0, 1), 0.5), math.radians(90), math.radians(180)),  # 3
    Part.LineSegment(App.Vector(-118.0372, 4.489, 0), App.Vector(-111.3642, 4.489, 0)),  # 4
    Part.ArcOfCircle(Part.Circle(App.Vector(-111.3642, 3.989, 0), App.Vector(0, 0, 1), 0.5), math.radians(0), math.radians(90)),  # 5
    Part.LineSegment(App.Vector(-110.8642, 3.989, 0), App.Vector(-110.8642, 3.7394, 0)),  # 6
    Part.ArcOfCircle(Part.Circle(App.Vector(-111.3642, 3.7394, 0), App.Vector(0, 0, 1), 0.5), math.radians(-90), math.radians(0)),  # 7
], False)
sketch8.addConstraint([
    Sketcher.Constraint("Tangent", 0, 2, 1, 2),
    Sketcher.Constraint("Tangent", 1, 1, 2, 1),
    Sketcher.Constraint("Tangent", 2, 2, 3, 2),
    Sketcher.Constraint("Tangent", 3, 1, 4, 1),
    Sketcher.Constraint("Tangent", 4, 2, 5, 2),
    Sketcher.Constraint("Tangent", 5, 1, 6, 1),
    Sketcher.Constraint("Tangent", 6, 2, 7, 2),
    Sketcher.Constraint("Tangent", 7, 1, 0, 1),
    Sketcher.Constraint("Horizontal", 0),
    Sketcher.Constraint("Vertical", 2),
    Sketcher.Constraint("Horizontal", 4),
    Sketcher.Constraint("Vertical", 6),
    Sketcher.Constraint("Equal", 1, 3),
    Sketcher.Constraint("Equal", 3, 5),
    Sketcher.Constraint("Equal", 5, 7),
    Sketcher.Constraint("Radius", 1, 0.5),
    Sketcher.Constraint("DistanceX", 0, 2, 0, 1, 6.673),
    Sketcher.Constraint("DistanceY", 2, 1, 2, 2, 0.2496),
    Sketcher.Constraint("DistanceY", -1, 1, 3, 3, 3.989),
    Sketcher.Constraint("DistanceX", 1, 3, -1, 1, 118.0372),
])
sketch8.setExpression("Constraints[15]", "Params.sketch8_radius")
pad4 = body.newObject("PartDesign::Pad", "Pad003")
pad4.Profile = sketch8
pad4.setExpression("Length", "Params.pad4_length")
pad4.Reversed = True

# Sketch on XZ plane
sketch9 = body.newObject("Sketcher::SketchObject", "Sketch008")
sketch9.AttachmentSupport = (doc.getObject("XZ_Plane"), [""])
sketch9.MapMode = "FlatFace"
sketch9.addGeometry(Part.Circle(App.Vector(-128.9815, -54.6956, 0), App.Vector(0, 0, 1), 3.03), False)
sketch9.addConstraint([
    Sketcher.Constraint("Diameter", 0, 6.06),
    Sketcher.Constraint("DistanceX", 0, 3, -1, 1, 128.9815),
    Sketcher.Constraint("DistanceY", 0, 3, -1, 1, 54.6956),
])
sketch9.setExpression("Constraints[0]", "Params.sketch9_diameter")
pad5 = body.newObject("PartDesign::Pad", "Pad004")
pad5.Profile = sketch9
pad5.setExpression("Length", "Params.pad5_length")

# Sketch on XZ plane
sketch10 = body.newObject("Sketcher::SketchObject", "Sketch009")
sketch10.AttachmentSupport = (doc.getObject("XZ_Plane"), [""])
sketch10.MapMode = "FlatFace"
sketch10.AttachmentOffset = App.Placement(App.Vector(0, 0, 1), App.Rotation())
sketch10.addGeometry(Part.Circle(App.Vector(-128.9815, -54.6956, 0), App.Vector(0, 0, 1), 2.5382), False)
sketch10.addConstraint([
    Sketcher.Constraint("Diameter", 0, 5.0764),
    Sketcher.Constraint("DistanceX", 0, 3, -1, 1, 128.9815),
    Sketcher.Constraint("DistanceY", 0, 3, -1, 1, 54.6956),
])
pocket5 = body.newObject("PartDesign::Pocket", "Pocket004")
pocket5.Profile = sketch10
pocket5.setExpression("Length", "Params.pocket5_length")

# Sketch on XZ plane
sketch11 = body.newObject("Sketcher::SketchObject", "Sketch010")
sketch11.AttachmentSupport = (doc.getObject("XZ_Plane"), [""])
sketch11.MapMode = "FlatFace"
sketch11.AttachmentOffset = App.Placement(App.Vector(0, 0, 0.7), App.Rotation())
sketch11.addGeometry(Part.Circle(App.Vector(-128.9815, -54.6956, 0), App.Vector(0, 0, 1), 1.6518), False)
sketch11.addConstraint([
    Sketcher.Constraint("Diameter", 0, 3.3036),
    Sketcher.Constraint("DistanceX", 0, 3, -1, 1, 128.9815),
    Sketcher.Constraint("DistanceY", 0, 3, -1, 1, 54.6956),
])
pad6 = body.newObject("PartDesign::Pad", "Pad005")
pad6.Profile = sketch11
pad6.setExpression("Length", "Params.pad6_length")

# Sketch on XZ plane
sketch12 = body.newObject("Sketcher::SketchObject", "Sketch011")
sketch12.AttachmentSupport = (doc.getObject("XZ_Plane"), [""])
sketch12.MapMode = "FlatFace"
sketch12.AttachmentOffset = App.Placement(App.Vector(0, 0, 1), App.Rotation())
sketch12.addGeometry(Part.Circle(App.Vector(-128.9815, -54.6956, 0), App.Vector(0, 0, 1), 0.4872), False)
sketch12.addConstraint([
    Sketcher.Constraint("Diameter", 0, 0.9744),
    Sketcher.Constraint("DistanceX", 0, 3, -1, 1, 128.9815),
    Sketcher.Constraint("DistanceY", 0, 3, -1, 1, 54.6956),
])
pocket6 = body.newObject("PartDesign::Pocket", "Pocket005")
pocket6.Profile = sketch12
pocket6.setExpression("Length", "Params.pocket6_length")

# Sketch on XZ plane
sketch13 = body.newObject("Sketcher::SketchObject", "Sketch012")
sketch13.AttachmentSupport = (doc.getObject("XZ_Plane"), [""])
sketch13.MapMode = "FlatFace"
sketch13.addGeometry(Part.Circle(App.Vector(-128.9815, -49.2163, 0), App.Vector(0, 0, 1), 0.9142), False)
sketch13.addConstraint([
    Sketcher.Constraint("Diameter", 0, 1.8284),
    Sketcher.Constraint("DistanceX", 0, 3, -1, 1, 128.9815),
    Sketcher.Constraint("DistanceY", 0, 3, -1, 1, 49.2163),
])
pocket7 = body.newObject("PartDesign::Pocket", "Pocket006")
pocket7.Profile = sketch13
pocket7.setExpression("Length", "Params.pocket7_length")

doc.recompute()
